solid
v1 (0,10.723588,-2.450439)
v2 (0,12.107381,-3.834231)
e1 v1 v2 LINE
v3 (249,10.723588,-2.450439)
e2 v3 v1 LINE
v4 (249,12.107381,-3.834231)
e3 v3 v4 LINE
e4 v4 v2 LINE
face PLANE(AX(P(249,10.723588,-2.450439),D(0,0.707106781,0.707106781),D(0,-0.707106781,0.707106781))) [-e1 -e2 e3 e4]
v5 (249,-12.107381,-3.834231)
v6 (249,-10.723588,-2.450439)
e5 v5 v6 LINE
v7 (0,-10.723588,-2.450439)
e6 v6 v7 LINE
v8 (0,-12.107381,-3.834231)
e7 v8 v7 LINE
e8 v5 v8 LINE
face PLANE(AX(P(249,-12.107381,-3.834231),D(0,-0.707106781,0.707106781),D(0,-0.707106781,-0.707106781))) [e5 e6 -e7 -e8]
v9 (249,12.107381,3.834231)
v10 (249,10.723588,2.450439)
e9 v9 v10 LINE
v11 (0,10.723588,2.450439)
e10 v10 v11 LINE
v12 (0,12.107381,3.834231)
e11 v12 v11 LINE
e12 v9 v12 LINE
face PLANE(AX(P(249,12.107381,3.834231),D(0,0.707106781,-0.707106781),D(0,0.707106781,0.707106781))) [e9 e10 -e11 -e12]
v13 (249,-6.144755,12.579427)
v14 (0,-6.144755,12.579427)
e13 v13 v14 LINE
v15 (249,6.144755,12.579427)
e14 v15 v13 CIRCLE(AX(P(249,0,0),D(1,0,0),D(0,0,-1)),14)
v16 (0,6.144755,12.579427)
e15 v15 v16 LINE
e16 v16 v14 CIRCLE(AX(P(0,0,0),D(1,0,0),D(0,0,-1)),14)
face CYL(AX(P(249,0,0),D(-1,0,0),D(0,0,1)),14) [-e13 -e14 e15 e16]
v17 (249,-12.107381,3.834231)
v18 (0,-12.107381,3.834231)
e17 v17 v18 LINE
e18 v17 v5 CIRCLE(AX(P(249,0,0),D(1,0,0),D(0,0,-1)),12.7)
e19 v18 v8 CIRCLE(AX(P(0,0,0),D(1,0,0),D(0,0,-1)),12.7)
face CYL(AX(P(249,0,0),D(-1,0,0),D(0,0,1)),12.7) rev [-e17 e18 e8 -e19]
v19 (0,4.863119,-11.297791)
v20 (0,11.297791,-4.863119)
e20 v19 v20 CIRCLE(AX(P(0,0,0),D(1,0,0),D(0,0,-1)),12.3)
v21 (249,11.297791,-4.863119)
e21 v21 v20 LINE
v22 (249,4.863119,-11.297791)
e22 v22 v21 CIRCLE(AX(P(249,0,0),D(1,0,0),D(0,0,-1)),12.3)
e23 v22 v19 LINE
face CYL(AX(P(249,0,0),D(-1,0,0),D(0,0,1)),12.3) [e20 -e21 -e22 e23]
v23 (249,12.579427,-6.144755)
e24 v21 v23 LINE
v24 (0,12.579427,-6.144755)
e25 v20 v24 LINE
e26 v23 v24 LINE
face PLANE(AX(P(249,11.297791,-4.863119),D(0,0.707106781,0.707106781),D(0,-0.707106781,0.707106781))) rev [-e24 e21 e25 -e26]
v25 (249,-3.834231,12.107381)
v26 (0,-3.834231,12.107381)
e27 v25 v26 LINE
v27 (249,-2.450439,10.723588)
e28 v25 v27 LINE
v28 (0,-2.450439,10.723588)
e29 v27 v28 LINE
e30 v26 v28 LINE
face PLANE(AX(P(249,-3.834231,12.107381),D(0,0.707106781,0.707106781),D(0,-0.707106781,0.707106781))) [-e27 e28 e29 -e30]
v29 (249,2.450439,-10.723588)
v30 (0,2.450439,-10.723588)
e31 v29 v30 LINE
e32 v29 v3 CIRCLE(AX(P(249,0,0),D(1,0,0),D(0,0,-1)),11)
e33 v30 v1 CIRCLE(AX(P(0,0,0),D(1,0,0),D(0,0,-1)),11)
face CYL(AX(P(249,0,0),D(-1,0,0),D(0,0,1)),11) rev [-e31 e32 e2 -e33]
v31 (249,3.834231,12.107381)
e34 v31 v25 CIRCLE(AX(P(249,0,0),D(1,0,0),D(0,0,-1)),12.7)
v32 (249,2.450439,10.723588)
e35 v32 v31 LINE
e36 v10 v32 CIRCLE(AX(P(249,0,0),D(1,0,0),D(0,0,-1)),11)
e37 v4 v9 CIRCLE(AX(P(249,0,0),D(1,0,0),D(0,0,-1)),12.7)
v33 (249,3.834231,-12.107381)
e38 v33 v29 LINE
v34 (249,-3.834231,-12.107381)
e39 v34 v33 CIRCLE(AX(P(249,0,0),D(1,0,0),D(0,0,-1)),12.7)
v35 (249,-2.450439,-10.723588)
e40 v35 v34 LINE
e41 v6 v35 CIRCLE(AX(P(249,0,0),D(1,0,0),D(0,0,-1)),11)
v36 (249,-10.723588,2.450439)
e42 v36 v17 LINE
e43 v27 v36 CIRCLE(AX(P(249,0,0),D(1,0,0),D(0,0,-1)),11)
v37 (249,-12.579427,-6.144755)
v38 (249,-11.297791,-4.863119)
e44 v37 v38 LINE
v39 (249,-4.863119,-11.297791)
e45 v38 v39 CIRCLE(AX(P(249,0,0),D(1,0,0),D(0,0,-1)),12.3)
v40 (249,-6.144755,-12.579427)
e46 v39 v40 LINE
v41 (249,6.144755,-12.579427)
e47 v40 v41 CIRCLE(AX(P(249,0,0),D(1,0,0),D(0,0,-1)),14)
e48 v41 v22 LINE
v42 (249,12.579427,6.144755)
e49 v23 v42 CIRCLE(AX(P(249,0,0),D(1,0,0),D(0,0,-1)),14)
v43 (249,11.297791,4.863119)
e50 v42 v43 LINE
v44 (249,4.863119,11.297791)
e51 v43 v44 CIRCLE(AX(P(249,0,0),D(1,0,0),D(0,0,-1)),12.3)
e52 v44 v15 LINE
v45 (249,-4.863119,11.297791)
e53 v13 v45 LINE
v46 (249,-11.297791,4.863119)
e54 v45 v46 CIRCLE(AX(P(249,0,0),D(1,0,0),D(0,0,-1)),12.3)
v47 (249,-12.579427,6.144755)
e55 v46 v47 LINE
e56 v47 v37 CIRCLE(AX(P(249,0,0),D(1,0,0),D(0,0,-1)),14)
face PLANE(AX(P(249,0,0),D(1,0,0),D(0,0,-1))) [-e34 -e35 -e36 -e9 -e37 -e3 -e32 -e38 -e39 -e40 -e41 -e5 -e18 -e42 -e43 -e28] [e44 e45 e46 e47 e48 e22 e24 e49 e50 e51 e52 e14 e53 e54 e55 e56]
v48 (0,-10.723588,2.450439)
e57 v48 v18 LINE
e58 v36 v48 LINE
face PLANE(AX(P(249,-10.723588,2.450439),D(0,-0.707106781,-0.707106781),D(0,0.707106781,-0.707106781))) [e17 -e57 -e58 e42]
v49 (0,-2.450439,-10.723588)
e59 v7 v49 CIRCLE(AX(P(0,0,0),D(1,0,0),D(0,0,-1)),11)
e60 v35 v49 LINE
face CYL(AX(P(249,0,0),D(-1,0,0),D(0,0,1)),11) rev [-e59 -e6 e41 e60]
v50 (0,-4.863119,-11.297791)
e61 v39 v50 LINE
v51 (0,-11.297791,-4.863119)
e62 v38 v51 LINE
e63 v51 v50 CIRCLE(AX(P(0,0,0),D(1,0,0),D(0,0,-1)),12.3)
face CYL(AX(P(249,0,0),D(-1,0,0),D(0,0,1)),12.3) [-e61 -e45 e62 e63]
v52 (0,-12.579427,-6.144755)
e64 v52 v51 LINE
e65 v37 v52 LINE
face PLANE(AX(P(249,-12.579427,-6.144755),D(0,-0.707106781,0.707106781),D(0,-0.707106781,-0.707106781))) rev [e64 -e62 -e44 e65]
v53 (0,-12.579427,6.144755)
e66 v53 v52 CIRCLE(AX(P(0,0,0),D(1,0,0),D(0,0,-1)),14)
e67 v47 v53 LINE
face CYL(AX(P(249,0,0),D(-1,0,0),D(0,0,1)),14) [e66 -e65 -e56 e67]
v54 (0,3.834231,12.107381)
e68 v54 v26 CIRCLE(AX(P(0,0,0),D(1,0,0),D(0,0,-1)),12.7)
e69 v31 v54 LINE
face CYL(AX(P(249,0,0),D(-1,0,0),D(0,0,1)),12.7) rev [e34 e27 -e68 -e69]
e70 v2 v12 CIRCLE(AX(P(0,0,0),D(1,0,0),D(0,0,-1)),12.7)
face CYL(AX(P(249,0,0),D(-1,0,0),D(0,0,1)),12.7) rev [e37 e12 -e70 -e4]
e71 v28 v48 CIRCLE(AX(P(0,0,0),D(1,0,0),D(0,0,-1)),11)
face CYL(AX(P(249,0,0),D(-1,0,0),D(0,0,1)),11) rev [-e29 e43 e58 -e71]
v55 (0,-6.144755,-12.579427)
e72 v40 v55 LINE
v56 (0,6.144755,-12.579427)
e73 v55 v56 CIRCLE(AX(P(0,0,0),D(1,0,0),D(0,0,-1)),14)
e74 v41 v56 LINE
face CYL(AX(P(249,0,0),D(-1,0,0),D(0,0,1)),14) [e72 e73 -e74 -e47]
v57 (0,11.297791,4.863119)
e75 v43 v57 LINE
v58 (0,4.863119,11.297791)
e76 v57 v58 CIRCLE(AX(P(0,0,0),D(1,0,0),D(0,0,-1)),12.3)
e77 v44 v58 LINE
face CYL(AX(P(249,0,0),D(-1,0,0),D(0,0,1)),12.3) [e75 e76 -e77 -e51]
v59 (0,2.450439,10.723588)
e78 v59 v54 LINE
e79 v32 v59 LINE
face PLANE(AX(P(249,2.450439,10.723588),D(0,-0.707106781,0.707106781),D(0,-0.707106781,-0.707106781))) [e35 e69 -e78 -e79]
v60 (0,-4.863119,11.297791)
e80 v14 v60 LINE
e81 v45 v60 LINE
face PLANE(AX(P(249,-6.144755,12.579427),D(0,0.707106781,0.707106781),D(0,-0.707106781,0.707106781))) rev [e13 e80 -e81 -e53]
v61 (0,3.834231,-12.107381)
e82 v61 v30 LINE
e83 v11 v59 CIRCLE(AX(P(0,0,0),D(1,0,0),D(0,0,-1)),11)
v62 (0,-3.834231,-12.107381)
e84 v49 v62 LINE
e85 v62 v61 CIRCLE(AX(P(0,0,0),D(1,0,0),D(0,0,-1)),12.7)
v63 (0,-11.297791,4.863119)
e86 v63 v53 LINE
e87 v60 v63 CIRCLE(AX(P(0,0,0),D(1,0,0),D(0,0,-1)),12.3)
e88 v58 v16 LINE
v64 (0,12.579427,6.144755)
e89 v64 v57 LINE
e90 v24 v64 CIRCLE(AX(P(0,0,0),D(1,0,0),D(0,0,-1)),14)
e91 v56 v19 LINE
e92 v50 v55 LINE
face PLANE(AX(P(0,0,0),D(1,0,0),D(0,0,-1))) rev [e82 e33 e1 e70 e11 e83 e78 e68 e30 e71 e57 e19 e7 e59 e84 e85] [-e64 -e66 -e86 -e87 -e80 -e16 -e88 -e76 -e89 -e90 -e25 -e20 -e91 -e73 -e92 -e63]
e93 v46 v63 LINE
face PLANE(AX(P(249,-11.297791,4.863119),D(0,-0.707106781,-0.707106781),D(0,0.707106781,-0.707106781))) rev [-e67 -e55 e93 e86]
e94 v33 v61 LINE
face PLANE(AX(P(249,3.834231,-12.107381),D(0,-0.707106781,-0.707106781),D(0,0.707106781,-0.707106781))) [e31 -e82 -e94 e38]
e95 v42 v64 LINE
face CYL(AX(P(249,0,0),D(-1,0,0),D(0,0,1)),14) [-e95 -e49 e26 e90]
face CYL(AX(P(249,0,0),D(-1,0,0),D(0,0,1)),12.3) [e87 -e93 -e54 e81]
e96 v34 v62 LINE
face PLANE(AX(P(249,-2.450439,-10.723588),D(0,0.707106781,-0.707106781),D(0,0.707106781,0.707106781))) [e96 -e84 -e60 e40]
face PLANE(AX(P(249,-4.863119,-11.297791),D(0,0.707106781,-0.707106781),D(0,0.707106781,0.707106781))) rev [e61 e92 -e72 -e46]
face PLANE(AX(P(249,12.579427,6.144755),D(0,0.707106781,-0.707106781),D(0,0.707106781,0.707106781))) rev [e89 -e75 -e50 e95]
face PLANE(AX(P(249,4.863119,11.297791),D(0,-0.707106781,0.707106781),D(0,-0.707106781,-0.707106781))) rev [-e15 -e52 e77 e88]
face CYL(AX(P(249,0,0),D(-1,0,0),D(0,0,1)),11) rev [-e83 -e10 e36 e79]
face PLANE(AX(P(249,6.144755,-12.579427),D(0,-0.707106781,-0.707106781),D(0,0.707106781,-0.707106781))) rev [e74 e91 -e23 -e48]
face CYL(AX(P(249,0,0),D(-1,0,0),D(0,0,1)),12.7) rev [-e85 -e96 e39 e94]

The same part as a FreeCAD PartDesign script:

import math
import FreeCAD as App
import Part
import Sketcher
Q = App.Units.Quantity

doc = App.newDocument("Part")
body = doc.addObject("PartDesign::Body", "Body")

sketch1 = body.newObject("Sketcher::SketchObject", "Sketch")
sketch1.AttachmentSupport = (doc.getObject("YZ_Plane"), [""])
sketch1.MapMode = "FlatFace"
sketch1.addGeometry(Part.LineSegment(App.Vector(4.9, 11.3, 0), App.Vector(6.1, 12.6, 0)), False)
sketch1.addGeometry(Part.ArcOfCircle(Part.Circle(App.Vector(0, 0, 0), App.Vector(0, 0, 1), 14), math.radians(64), math.radians(116)), False)
sketch1.addGeometry(Part.LineSegment(App.Vector(-6.1, 12.6, 0), App.Vector(-4.9, 11.3, 0)), False)
sketch1.addGeometry(Part.ArcOfCircle(Part.Circle(App.Vector(0, 0, 0), App.Vector(0, 0, 1), 12.3), math.radians(113), math.radians(157)), False)
sketch1.addGeometry(Part.LineSegment(App.Vector(-11.3, 4.9, 0), App.Vector(-12.6, 6.1, 0)), False)
sketch1.addGeometry(Part.ArcOfCircle(Part.Circle(App.Vector(0, 0, 0), App.Vector(0, 0, 1), 14), math.radians(154), math.radians(206)), False)
sketch1.addGeometry(Part.LineSegment(App.Vector(-12.6, -6.1, 0), App.Vector(-11.3, -4.9, 0)), False)
sketch1.addGeometry(Part.ArcOfCircle(Part.Circle(App.Vector(0, 0, 0), App.Vector(0, 0, 1), 12.3), math.radians(-157), math.radians(-113)), False)
sketch1.addGeometry(Part.LineSegment(App.Vector(-4.9, -11.3, 0), App.Vector(-6.1, -12.6, 0)), False)
sketch1.addGeometry(Part.ArcOfCircle(Part.Circle(App.Vector(0, 0, 0), App.Vector(0, 0, 1), 14), math.radians(-116), math.radians(-90)), False)
sketch1.addGeometry(Part.ArcOfCircle(Part.Circle(App.Vector(0, 0, 0), App.Vector(0, 0, 1), 14), math.radians(-90), math.radians(-64)), False)
sketch1.addGeometry(Part.LineSegment(App.Vector(6.1, -12.6, 0), App.Vector(4.9, -11.3, 0)), False)
sketch1.addGeometry(Part.ArcOfCircle(Part.Circle(App.Vector(0, 0, 0), App.Vector(0, 0, 1), 12.3), math.radians(-67), math.radians(-23)), False)
sketch1.addGeometry(Part.LineSegment(App.Vector(11.3, -4.9, 0), App.Vector(12.6, -6.1, 0)), False)
sketch1.addGeometry(Part.ArcOfCircle(Part.Circle(App.Vector(0, 0, 0), App.Vector(0, 0, 1), 14), math.radians(-26), math.radians(26)), False)
sketch1.addGeometry(Part.LineSegment(App.Vector(12.6, 6.1, 0), App.Vector(11.3, 4.9, 0)), False)
sketch1.addGeometry(Part.ArcOfCircle(Part.Circle(App.Vector(0, 0, 0), App.Vector(0, 0, 1), 12.3), math.radians(23), math.radians(67)), False)
sketch1.addGeometry(Part.LineSegment(App.Vector(3.8, 12.1, 0), App.Vector(2.5, 10.7, 0)), False)
sketch1.addGeometry(Part.ArcOfCircle(Part.Circle(App.Vector(0, 0, 0), App.Vector(0, 0, 1), 11), math.radians(13), math.radians(77)), False)
sketch1.addGeometry(Part.LineSegment(App.Vector(10.7, 2.5, 0), App.Vector(12.1, 3.8, 0)), False)
sketch1.addGeometry(Part.ArcOfCircle(Part.Circle(App.Vector(0, 0, 0), App.Vector(0, 0, 1), 12.7), math.radians(-18), math.radians(18)), False)
sketch1.addGeometry(Part.LineSegment(App.Vector(12.1, -3.8, 0), App.Vector(10.7, -2.5, 0)), False)
sketch1.addGeometry(Part.ArcOfCircle(Part.Circle(App.Vector(0, 0, 0), App.Vector(0, 0, 1), 11), math.radians(-77), math.radians(-13)), False)
sketch1.addGeometry(Part.LineSegment(App.Vector(2.5, -10.7, 0), App.Vector(3.8, -12.1, 0)), False)
sketch1.addGeometry(Part.ArcOfCircle(Part.Circle(App.Vector(0, 0, 0), App.Vector(0, 0, 1), 12.7), math.radians(-90), math.radians(-72.43)), False)
sketch1.addGeometry(Part.ArcOfCircle(Part.Circle(App.Vector(0, 0, 0), App.Vector(0, 0, 1), 12.7), math.radians(-107.57), math.radians(-90)), False)
sketch1.addGeometry(Part.LineSegment(App.Vector(-3.8, -12.1, 0), App.Vector(-2.5, -10.7, 0)), False)
sketch1.addGeometry(Part.ArcOfCircle(Part.Circle(App.Vector(0, 0, 0), App.Vector(0, 0, 1), 11), math.radians(-167), math.radians(-103)), False)
sketch1.addGeometry(Part.LineSegment(App.Vector(-10.7, -2.5, 0), App.Vector(-12.1, -3.8, 0)), False)
sketch1.addGeometry(Part.ArcOfCircle(Part.Circle(App.Vector(0, 0, 0), App.Vector(0, 0, 1), 12.7), math.radians(162), math.radians(198)), False)
sketch1.addGeometry(Part.LineSegment(App.Vector(-12.1, 3.8, 0), App.Vector(-10.7, 2.5, 0)), False)
sketch1.addGeometry(Part.ArcOfCircle(Part.Circle(App.Vector(0, 0, 0), App.Vector(0, 0, 1), 11), math.radians(103), math.radians(167)), False)
sketch1.addGeometry(Part.LineSegment(App.Vector(-2.5, 10.7, 0), App.Vector(-3.8, 12.1, 0)), False)
sketch1.addGeometry(Part.ArcOfCircle(Part.Circle(App.Vector(0, 0, 0), App.Vector(0, 0, 1), 12.7), math.radians(72), math.radians(108)), False)
sketch1.addConstraint(Sketcher.Constraint("Coincident", 0, 2, 1, 1))
sketch1.addConstraint(Sketcher.Constraint("Coincident", 1, 2, 2, 1))
sketch1.addConstraint(Sketcher.Constraint("Coincident", 2, 2, 3, 1))
sketch1.addConstraint(Sketcher.Constraint("Coincident", 3, 2, 4, 1))
sketch1.addConstraint(Sketcher.Constraint("Coincident", 4, 2, 5, 1))
sketch1.addConstraint(Sketcher.Constraint("Coincident", 5, 2, 6, 1))
sketch1.addConstraint(Sketcher.Constraint("Coincident", 6, 2, 7, 1))
sketch1.addConstraint(Sketcher.Constraint("Coincident", 7, 2, 8, 1))
sketch1.addConstraint(Sketcher.Constraint("Coincident", 8, 2, 9, 1))
sketch1.addConstraint(Sketcher.Constraint("Tangent", 9, 2, 10, 1))
sketch1.addConstraint(Sketcher.Constraint("Coincident", 10, 2, 11, 1))
sketch1.addConstraint(Sketcher.Constraint("Coincident", 11, 2, 12, 1))
sketch1.addConstraint(Sketcher.Constraint("Coincident", 12, 2, 13, 1))
sketch1.addConstraint(Sketcher.Constraint("Coincident", 13, 2, 14, 1))
sketch1.addConstraint(Sketcher.Constraint("Coincident", 14, 2, 15, 1))
sketch1.addConstraint(Sketcher.Constraint("Coincident", 15, 2, 16, 1))
sketch1.addConstraint(Sketcher.Constraint("Coincident", 16, 2, 0, 1))
sketch1.addConstraint(Sketcher.Constraint("Coincident", 17, 2, 18, 2))
sketch1.addConstraint(Sketcher.Constraint("Coincident", 18, 1, 19, 1))
sketch1.addConstraint(Sketcher.Constraint("Coincident", 19, 2, 20, 2))
sketch1.addConstraint(Sketcher.Constraint("Coincident", 20, 1, 21, 1))
sketch1.addConstraint(Sketcher.Constraint("Coincident", 21, 2, 22, 2))
sketch1.addConstraint(Sketcher.Constraint("Coincident", 22, 1, 23, 1))
sketch1.addConstraint(Sketcher.Constraint("Coincident", 23, 2, 24, 2))
sketch1.addConstraint(Sketcher.Constraint("Tangent", 24, 1, 25, 2))
sketch1.addConstraint(Sketcher.Constraint("Coincident", 25, 1, 26, 1))
sketch1.addConstraint(Sketcher.Constraint("Coincident", 26, 2, 27, 2))
sketch1.addConstraint(Sketcher.Constraint("Coincident", 27, 1, 28, 1))
sketch1.addConstraint(Sketcher.Constraint("Coincident", 28, 2, 29, 2))
sketch1.addConstraint(Sketcher.Constraint("Coincident", 29, 1, 30, 1))
sketch1.addConstraint(Sketcher.Constraint("Coincident", 30, 2, 31, 2))
sketch1.addConstraint(Sketcher.Constraint("Coincident", 31, 1, 32, 1))
sketch1.addConstraint(Sketcher.Constraint("Coincident", 32, 2, 33, 2))
sketch1.addConstraint(Sketcher.Constraint("Coincident", 33, 1, 17, 1))
sketch1.addConstraint(Sketcher.Constraint("Coincident", 1, 3, -1, 1))
sketch1.addConstraint(Sketcher.Constraint("Coincident", 3, 3, -1, 1))
sketch1.addConstraint(Sketcher.Constraint("Coincident", 5, 3, -1, 1))
sketch1.addConstraint(Sketcher.Constraint("Coincident", 7, 3, -1, 1))
sketch1.addConstraint(Sketcher.Constraint("Coincident", 9, 3, -1, 1))
sketch1.addConstraint(Sketcher.Constraint("Coincident", 12, 3, -1, 1))
sketch1.addConstraint(Sketcher.Constraint("Coincident", 14, 3, -1, 1))
sketch1.addConstraint(Sketcher.Constraint("Coincident", 16, 3, -1, 1))
sketch1.addConstraint(Sketcher.Constraint("Coincident", 18, 3, -1, 1))
sketch1.addConstraint(Sketcher.Constraint("Coincident", 20, 3, -1, 1))
sketch1.addConstraint(Sketcher.Constraint("Coincident", 22, 3, -1, 1))
sketch1.addConstraint(Sketcher.Constraint("Coincident", 24, 3, -1, 1))
sketch1.addConstraint(Sketcher.Constraint("Coincident", 27, 3, -1, 1))
sketch1.addConstraint(Sketcher.Constraint("Coincident", 29, 3, -1, 1))
sketch1.addConstraint(Sketcher.Constraint("Coincident", 31, 3, -1, 1))
sketch1.addConstraint(Sketcher.Constraint("Coincident", 33, 3, -1, 1))
sketch1.addConstraint(Sketcher.Constraint("Equal", 1, 5))
sketch1.addConstraint(Sketcher.Constraint("Equal", 3, 7))
sketch1.addConstraint(Sketcher.Constraint("Equal", 5, 9))
sketch1.addConstraint(Sketcher.Constraint("Equal", 9, 10))
sketch1.addConstraint(Sketcher.Constraint("Equal", 7, 12))
sketch1.addConstraint(Sketcher.Constraint("Equal", 10, 14))
sketch1.addConstraint(Sketcher.Constraint("Equal", 12, 16))
sketch1.addConstraint(Sketcher.Constraint("Equal", 18, 22))
sketch1.addConstraint(Sketcher.Constraint("Equal", 20, 24))
sketch1.addConstraint(Sketcher.Constraint("Equal", 24, 25))
sketch1.addConstraint(Sketcher.Constraint("Equal", 22, 27))
sketch1.addConstraint(Sketcher.Constraint("Equal", 25, 29))
sketch1.addConstraint(Sketcher.Constraint("Equal", 27, 31))
sketch1.addConstraint(Sketcher.Constraint("Equal", 29, 33))
sketch1.addConstraint(Sketcher.Constraint("PointOnObject", 9, 2, -2))
sketch1.addConstraint(Sketcher.Constraint("PointOnObject", 24, 1, -2))
sketch1.addConstraint(Sketcher.Constraint("Perpendicular", 0, 2))
sketch1.addConstraint(Sketcher.Constraint("Parallel", 2, 4))
sketch1.addConstraint(Sketcher.Constraint("Perpendicular", 4, 6))
sketch1.addConstraint(Sketcher.Constraint("Parallel", 6, 8))
sketch1.addConstraint(Sketcher.Constraint("Perpendicular", 8, 11))
sketch1.addConstraint(Sketcher.Constraint("Parallel", 11, 13))
sketch1.addConstraint(Sketcher.Constraint("Perpendicular", 13, 15))
sketch1.addConstraint(Sketcher.Constraint("Parallel", 15, 17))
sketch1.addConstraint(Sketcher.Constraint("Parallel", 17, 19))
sketch1.addConstraint(Sketcher.Constraint("Perpendicular", 19, 21))
sketch1.addConstraint(Sketcher.Constraint("Parallel", 21, 23))
sketch1.addConstraint(Sketcher.Constraint("Perpendicular", 23, 26))
sketch1.addConstraint(Sketcher.Constraint("Parallel", 26, 28))
sketch1.addConstraint(Sketcher.Constraint("Perpendicular", 28, 30))
sketch1.addConstraint(Sketcher.Constraint("Parallel", 30, 32))
sketch1.addConstraint(Sketcher.Constraint("Horizontal", 0, 2, 1, 2))
sketch1.addConstraint(Sketcher.Constraint("Horizontal", 8, 2, 10, 2))
sketch1.addConstraint(Sketcher.Constraint("Horizontal", 7, 2, 11, 2))
sketch1.addConstraint(Sketcher.Constraint("Horizontal", 6, 2, 12, 2))
sketch1.addConstraint(Sketcher.Constraint("Horizontal", 4, 2, 14, 2))
sketch1.addConstraint(Sketcher.Constraint("Horizontal", 23, 2, 25, 1))
sketch1.addConstraint(Sketcher.Constraint("Horizontal", 21, 2, 27, 1))
sketch1.addConstraint(Sketcher.Constraint("Horizontal", 19, 2, 29, 1))
sketch1.addConstraint(Sketcher.Constraint("Horizontal", 17, 2, 31, 1))
sketch1.addConstraint(Sketcher.Constraint("Vertical", 4, 2, 5, 2))
sketch1.addConstraint(Sketcher.Constraint("Vertical", 2, 2, 7, 2))
sketch1.addConstraint(Sketcher.Constraint("Vertical", 19, 2, 20, 1))
sketch1.addConstraint(Sketcher.Constraint("Vertical", 17, 2, 22, 1))
sketch1.addConstraint(Sketcher.Constraint("Equal", 2, 4))
sketch1.addConstraint(Sketcher.Constraint("Equal", 17, 19))
sketch1.addConstraint(Sketcher.Constraint("Radius", 1, Q("14 mm")))
sketch1.addConstraint(Sketcher.Constraint("Radius", 18, Q("11 mm")))
sketch1.addConstraint(Sketcher.Constraint("Radius", 3, Q("12.3 mm")))
sketch1.addConstraint(Sketcher.Constraint("Radius", 20, Q("12.7 mm")))
sketch1.addConstraint(Sketcher.Constraint("DistanceX", 2, 2, -1, 1, Q("4.863119 mm")))
sketch1.addConstraint(Sketcher.Constraint("DistanceX", -1, 1, 17, 2, Q("2.450439 mm")))
pad1 = body.newObject("PartDesign::Pad", "Pad")
pad1.Profile = sketch1
pad1.Length = 249

doc.recompute()
